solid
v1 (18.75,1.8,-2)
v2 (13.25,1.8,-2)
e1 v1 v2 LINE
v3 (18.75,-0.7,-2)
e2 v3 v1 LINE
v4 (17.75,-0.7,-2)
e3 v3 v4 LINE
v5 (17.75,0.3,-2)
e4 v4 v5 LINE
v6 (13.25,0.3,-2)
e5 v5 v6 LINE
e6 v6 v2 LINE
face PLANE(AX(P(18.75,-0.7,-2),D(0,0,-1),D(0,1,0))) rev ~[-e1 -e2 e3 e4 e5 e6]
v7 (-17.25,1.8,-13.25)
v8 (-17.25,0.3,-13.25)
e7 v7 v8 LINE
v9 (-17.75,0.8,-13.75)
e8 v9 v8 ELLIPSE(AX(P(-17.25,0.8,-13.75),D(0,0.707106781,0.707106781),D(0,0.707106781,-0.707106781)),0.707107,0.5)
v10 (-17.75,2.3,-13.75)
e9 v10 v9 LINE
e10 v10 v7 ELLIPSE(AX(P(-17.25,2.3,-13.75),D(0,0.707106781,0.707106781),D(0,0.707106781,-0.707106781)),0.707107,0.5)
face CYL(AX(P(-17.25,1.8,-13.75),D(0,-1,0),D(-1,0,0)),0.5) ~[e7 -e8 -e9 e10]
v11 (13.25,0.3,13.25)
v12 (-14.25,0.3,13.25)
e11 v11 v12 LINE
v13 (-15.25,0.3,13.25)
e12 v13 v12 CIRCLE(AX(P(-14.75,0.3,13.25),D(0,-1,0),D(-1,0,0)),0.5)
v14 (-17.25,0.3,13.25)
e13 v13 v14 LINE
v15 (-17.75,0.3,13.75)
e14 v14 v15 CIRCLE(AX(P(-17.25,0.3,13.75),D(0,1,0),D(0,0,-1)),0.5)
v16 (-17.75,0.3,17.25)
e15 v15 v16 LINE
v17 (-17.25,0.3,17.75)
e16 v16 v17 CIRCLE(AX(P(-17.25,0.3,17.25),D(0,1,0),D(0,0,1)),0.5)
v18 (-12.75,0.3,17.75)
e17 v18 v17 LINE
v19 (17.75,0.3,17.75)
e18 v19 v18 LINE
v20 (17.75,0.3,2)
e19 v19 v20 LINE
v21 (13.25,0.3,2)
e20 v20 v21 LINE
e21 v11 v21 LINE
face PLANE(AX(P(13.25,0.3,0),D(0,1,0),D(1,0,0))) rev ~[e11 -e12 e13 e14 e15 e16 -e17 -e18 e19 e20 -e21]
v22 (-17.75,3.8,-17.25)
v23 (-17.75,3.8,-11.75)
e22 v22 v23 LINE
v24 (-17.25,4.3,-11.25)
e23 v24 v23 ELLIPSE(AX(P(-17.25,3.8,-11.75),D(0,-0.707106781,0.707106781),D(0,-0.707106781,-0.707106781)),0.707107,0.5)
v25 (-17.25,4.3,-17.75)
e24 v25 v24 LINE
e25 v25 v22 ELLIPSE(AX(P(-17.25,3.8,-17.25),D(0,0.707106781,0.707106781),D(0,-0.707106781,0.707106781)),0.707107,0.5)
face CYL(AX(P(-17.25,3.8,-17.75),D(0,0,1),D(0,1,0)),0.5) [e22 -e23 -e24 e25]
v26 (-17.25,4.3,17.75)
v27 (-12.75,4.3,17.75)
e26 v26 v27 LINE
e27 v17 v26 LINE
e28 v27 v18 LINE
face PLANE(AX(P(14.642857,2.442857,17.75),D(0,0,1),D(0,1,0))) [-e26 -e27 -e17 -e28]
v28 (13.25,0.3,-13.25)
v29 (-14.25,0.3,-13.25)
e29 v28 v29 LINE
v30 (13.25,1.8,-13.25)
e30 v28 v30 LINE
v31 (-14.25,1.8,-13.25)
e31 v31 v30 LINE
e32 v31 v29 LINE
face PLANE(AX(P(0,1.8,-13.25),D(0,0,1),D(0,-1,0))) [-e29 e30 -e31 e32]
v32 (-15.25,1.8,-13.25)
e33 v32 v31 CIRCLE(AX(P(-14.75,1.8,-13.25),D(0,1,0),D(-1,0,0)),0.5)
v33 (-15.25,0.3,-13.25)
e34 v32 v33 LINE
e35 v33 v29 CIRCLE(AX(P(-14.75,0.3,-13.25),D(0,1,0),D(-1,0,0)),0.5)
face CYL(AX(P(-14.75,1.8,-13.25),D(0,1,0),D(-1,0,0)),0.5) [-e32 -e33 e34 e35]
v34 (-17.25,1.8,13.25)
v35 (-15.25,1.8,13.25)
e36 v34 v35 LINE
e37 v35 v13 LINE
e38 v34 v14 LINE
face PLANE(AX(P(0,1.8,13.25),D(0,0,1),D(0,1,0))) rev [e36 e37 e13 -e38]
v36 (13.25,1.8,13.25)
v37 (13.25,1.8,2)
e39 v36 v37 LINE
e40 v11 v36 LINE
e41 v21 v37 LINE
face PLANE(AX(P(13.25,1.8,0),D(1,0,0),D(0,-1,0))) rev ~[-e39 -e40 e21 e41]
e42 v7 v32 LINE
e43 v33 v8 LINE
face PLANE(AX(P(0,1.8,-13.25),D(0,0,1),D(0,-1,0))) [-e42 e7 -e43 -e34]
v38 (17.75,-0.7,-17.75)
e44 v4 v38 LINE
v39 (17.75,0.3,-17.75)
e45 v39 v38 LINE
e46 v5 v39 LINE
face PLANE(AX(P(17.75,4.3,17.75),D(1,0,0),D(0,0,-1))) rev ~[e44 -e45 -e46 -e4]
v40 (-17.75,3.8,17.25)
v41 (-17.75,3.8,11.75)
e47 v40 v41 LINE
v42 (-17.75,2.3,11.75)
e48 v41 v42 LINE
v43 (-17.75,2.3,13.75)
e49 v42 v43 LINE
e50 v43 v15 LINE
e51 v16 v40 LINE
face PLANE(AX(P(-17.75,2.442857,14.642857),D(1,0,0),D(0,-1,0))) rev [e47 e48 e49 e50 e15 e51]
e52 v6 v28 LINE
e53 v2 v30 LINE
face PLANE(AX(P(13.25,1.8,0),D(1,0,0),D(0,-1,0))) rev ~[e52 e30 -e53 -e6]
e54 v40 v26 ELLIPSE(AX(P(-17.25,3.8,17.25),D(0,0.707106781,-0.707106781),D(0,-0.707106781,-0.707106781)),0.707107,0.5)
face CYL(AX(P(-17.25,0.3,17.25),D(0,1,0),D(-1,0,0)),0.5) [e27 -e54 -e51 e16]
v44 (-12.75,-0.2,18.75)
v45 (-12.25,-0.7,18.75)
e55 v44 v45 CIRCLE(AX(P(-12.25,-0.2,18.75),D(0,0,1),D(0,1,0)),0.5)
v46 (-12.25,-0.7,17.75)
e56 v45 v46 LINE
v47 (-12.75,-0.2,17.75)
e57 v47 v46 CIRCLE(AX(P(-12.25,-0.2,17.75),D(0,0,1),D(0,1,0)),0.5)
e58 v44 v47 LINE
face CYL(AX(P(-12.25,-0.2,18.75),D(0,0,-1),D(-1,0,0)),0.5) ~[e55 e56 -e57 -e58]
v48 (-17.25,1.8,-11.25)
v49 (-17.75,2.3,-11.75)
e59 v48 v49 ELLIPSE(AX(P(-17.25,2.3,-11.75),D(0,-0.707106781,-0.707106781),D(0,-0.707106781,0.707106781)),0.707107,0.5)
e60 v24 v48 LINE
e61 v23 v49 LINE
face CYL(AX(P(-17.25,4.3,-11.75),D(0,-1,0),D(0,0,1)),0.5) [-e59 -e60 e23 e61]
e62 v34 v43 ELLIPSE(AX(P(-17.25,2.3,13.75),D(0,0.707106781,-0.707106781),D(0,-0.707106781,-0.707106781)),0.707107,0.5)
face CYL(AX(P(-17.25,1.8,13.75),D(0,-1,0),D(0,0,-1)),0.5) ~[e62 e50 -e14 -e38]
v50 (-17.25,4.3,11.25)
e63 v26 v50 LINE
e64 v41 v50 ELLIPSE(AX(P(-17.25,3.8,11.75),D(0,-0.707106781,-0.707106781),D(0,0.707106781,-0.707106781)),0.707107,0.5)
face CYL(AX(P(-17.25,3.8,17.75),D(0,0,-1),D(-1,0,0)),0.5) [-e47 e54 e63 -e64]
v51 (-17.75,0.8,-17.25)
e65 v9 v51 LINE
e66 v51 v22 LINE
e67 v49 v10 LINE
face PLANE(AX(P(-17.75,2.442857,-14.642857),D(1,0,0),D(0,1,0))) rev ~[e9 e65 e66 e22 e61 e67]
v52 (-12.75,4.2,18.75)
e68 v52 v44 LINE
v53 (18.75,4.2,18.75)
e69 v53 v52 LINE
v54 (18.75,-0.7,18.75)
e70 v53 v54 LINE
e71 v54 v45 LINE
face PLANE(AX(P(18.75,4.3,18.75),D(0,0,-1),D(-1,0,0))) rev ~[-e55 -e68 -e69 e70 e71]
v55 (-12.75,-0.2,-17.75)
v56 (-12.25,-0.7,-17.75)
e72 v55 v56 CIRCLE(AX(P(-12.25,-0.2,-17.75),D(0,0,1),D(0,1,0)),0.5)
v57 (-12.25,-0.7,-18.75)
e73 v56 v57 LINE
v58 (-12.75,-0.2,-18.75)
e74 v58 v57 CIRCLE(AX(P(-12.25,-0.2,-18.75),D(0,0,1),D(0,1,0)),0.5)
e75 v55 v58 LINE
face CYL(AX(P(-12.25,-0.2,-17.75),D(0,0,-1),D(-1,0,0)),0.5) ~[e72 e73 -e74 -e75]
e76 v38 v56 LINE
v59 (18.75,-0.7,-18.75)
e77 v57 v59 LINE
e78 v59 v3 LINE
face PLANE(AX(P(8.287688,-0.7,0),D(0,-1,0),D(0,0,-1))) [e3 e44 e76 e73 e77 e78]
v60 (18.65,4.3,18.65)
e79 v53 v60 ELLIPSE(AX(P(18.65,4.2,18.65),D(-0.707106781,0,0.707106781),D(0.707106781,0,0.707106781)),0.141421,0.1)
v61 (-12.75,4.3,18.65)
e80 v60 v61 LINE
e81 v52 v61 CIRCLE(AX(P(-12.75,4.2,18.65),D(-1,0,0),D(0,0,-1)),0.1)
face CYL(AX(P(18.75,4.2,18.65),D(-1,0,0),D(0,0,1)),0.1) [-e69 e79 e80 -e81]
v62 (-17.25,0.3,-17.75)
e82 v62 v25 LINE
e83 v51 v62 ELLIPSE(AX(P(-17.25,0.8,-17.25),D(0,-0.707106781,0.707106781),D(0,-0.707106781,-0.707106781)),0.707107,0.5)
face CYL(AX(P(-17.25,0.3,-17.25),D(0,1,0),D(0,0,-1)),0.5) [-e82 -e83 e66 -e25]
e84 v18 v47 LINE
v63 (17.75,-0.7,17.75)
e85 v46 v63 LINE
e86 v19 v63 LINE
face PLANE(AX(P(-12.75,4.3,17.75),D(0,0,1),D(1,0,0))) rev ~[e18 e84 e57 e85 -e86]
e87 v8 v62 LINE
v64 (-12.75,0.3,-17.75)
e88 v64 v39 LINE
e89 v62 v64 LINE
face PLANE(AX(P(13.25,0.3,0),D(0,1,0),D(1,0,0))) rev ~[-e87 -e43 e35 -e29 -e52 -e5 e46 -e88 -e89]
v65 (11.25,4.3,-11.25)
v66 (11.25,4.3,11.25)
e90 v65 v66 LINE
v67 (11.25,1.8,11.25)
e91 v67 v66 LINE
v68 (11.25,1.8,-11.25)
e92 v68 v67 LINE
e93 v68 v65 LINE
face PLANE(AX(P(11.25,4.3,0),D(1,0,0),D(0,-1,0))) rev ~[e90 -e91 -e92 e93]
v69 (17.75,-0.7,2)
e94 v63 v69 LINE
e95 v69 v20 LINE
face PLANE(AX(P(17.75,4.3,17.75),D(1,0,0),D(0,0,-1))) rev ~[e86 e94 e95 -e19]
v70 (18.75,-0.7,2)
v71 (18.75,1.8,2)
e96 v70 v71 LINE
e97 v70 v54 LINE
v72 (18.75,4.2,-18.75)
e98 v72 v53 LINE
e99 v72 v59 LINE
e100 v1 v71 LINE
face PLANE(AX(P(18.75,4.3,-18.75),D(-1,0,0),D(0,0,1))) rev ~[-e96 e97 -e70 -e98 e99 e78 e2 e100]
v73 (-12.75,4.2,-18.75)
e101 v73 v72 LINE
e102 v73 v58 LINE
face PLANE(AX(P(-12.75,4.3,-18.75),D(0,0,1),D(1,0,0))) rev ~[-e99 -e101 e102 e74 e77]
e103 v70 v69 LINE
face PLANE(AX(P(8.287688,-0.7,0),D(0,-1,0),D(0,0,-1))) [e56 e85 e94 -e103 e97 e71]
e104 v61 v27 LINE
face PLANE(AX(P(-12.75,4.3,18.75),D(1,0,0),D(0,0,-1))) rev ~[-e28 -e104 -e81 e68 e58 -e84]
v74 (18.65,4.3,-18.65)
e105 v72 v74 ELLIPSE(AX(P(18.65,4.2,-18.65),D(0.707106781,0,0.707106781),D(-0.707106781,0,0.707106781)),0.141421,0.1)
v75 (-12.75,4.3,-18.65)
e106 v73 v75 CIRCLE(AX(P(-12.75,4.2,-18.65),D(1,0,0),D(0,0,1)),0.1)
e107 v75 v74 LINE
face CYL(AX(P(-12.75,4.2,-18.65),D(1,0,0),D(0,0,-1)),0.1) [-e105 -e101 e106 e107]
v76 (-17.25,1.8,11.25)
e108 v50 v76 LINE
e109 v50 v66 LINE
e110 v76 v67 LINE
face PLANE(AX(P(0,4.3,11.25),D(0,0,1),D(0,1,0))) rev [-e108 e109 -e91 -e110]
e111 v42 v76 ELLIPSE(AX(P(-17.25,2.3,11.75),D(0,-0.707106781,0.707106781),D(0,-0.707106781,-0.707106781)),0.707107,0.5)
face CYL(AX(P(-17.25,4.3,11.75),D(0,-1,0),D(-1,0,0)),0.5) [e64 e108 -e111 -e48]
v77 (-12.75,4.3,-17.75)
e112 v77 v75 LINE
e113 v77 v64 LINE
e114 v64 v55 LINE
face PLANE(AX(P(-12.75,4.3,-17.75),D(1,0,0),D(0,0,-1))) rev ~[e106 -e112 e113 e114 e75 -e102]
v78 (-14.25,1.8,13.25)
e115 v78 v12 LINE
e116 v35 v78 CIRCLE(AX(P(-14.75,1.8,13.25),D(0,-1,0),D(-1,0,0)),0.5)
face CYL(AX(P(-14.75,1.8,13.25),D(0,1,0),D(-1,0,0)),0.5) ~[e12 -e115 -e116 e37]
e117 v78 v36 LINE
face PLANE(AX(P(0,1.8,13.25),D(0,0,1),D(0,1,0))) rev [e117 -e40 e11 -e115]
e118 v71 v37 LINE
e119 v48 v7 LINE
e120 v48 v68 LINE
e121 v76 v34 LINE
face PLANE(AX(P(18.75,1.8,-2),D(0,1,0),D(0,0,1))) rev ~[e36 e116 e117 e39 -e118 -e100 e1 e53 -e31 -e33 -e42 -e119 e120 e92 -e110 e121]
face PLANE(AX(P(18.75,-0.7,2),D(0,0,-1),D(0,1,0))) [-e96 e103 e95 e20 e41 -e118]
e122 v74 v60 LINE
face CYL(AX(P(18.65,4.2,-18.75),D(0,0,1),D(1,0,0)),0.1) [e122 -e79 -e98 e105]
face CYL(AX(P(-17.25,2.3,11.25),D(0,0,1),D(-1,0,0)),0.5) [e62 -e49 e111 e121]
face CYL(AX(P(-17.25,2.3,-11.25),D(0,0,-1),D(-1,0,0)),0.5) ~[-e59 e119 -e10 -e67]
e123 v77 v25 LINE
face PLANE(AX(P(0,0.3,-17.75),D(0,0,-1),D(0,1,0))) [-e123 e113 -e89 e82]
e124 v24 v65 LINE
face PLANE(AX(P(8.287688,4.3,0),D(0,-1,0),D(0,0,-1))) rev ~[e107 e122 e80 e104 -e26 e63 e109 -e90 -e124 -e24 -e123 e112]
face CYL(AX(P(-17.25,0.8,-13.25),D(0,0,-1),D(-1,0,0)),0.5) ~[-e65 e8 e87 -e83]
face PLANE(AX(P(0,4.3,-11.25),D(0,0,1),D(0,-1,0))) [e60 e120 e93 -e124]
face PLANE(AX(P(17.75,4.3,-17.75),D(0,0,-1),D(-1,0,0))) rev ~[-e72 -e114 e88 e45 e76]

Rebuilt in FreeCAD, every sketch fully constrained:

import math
import FreeCAD as App
import Part
import Sketcher
from FreeCAD import Vector


def edges_at(feature, points):
    """Names of the edges that pass closest to the given points."""
    edges = feature.Shape.Edges
    near = lambda p: min(range(len(edges)), key=lambda i: edges[i].distToShape(Part.Vertex(*p))[0])
    return sorted({f"Edge{near(p) + 1}" for p in points})


def add_polygon(sketch, points):
    """Adds a closed chain of lines whose ends are joined by coincident constraints."""
    first, n = sketch.GeometryCount, len(points)
    for a, b in zip(points, points[1:] + points[:1]):
        sketch.addGeometry(Part.LineSegment(App.Vector(*a, 0), App.Vector(*b, 0)), False)
    for i in range(n):
        sketch.addConstraint(Sketcher.Constraint("Coincident", first + i, 2, first + (i + 1) % n, 1))

doc = App.newDocument("Part")
params = doc.addObject("Spreadsheet::Sheet", "Params")
for row, (alias, value) in enumerate([
    ("sketch1_width", "4 mm"),
    ("sketch1_height", "2 mm"),
    ("sketch1_width2", "2.5 mm"),
    ("sketch1_height2", "6.5 mm"),
    ("pad1_length", "17.75 mm"),
    ("pad1_length2", "17.75 mm"),
    ("fillet_radius", "0.5 mm"),
    ("sketch2_radius", "0.5 mm"),
    ("pad2_length", "1.5 mm"),
    ("sketch3_height", "1 mm"),
    ("sketch3_width", "31.5 mm"),
    ("sketch3_width2", "30.5 mm"),
    ("sketch3_height2", "37.5 mm"),
    ("pad3_length", "5 mm"),
    ("fillet2_radius", "0.1 mm"),
    ("fillet3_radius", "0.5 mm"),
    ("fillet4_radius", "0.5 mm"),
    ("sketch4_height", "4 mm"),
    ("sketch4_width", "2.5 mm"),
], start=1):
    params.set(f"A{row}", alias)
    params.set(f"B{row}", "=" + value)
    params.setAlias(f"B{row}", alias)

body = doc.addObject("PartDesign::Body", "Body")

sketch1 = doc.addObject("Sketcher::SketchObject", "Sketch")
body.addObject(sketch1)
sketch1.AttachmentSupport = (doc.YZ_Plane, [""])
sketch1.MapMode = "FlatFace"
add_polygon(sketch1, [(0, -17.8), (4, -17.8), (4, -11.2), (1.5, -11.2), (1.5, -13.2), (0, -13.2)])
sketch1.addConstraint(Sketcher.Constraint("Horizontal", 0))
sketch1.addConstraint(Sketcher.Constraint("Vertical", 1))
sketch1.addConstraint(Sketcher.Constraint("Horizontal", 2))
sketch1.addConstraint(Sketcher.Constraint("Vertical", 3))
sketch1.addConstraint(Sketcher.Constraint("Horizontal", 4))
sketch1.addConstraint(Sketcher.Constraint("Vertical", 5))
sketch1.addConstraint(Sketcher.Constraint("PointOnObject", 4, 2, -2))
sketch1.addConstraint(Sketcher.Constraint("DistanceX", 0, 1, 0, 2, 4.0))
sketch1.addConstraint(Sketcher.Constraint("DistanceY", 3, 2, 3, 1, 2.0))
sketch1.addConstraint(Sketcher.Constraint("DistanceX", 2, 2, 2, 1, 2.5))
sketch1.addConstraint(Sketcher.Constraint("DistanceY", 1, 1, 1, 2, 6.5))
sketch1.addConstraint(Sketcher.Constraint("DistanceY", 0, 2, -1, 1, 17.75))
sketch1.setExpression("Constraints[13]", "Params.sketch1_width")
sketch1.setExpression("Constraints[14]", "Params.sketch1_height")
sketch1.setExpression("Constraints[15]", "Params.sketch1_width2")
sketch1.setExpression("Constraints[16]", "Params.sketch1_height2")
pad1 = doc.addObject("PartDesign::Pad", "Pad")
body.addObject(pad1)
pad1.Profile = sketch1
pad1.Type = "TwoLengths"
pad1.setExpression("Length", "Params.pad1_length")
pad1.setExpression("Length2", "Params.pad1_length2")
doc.recompute()

polarpattern = doc.addObject("PartDesign::PolarPattern", "PolarPattern")
body.addObject(polarpattern)
polarpattern.Originals = [pad1]
polarpattern.Axis = (doc.Y_Axis, [""])
polarpattern.Angle = 270
polarpattern.Occurrences = 2
body.Tip = polarpattern
doc.recompute()

mirrored = doc.addObject("PartDesign::Mirrored", "Mirrored")
body.addObject(mirrored)
mirrored.Originals = [pad1]
mirrored.MirrorPlane = (doc.XY_Plane, [""])
body.Tip = mirrored
doc.recompute()

fillet = doc.addObject("PartDesign::Fillet", "Fillet")
body.addObject(fillet)
fillet.Base = (mirrored, edges_at(mirrored, [
    (-17.75, 4, 14.5),
    (-17.75, 2.75, 11.25),
    (-17.75, 0.75, 13.25),
    (-17.75, 1.5, 12.25),
    (-17.75, 2, 17.75),
]))
fillet.setExpression("Radius", "Params.fillet_radius")

sketch2 = doc.addObject("Sketcher::SketchObject", "Sketch001")
body.addObject(sketch2)
sketch2.AttachmentSupport = (doc.XZ_Plane, [""])
sketch2.MapMode = "FlatFace"
sketch2.AttachmentOffset = App.Placement(Vector(0, 0, -1.5), App.Rotation())
sketch2.addGeometry(Part.ArcOfCircle(Part.Circle(Vector(-14.8, 13.2, 0), Vector(0, 0, 1), 0.5), math.radians(180), math.radians(360)), False)
sketch2.addGeometry(Part.LineSegment(Vector(-14.2, 13.2, 0), Vector(-15.2, 13.2, 0)), False)
sketch2.addConstraint(Sketcher.Constraint("Coincident", 0, 1, 1, 2))
sketch2.addConstraint(Sketcher.Constraint("Coincident", 1, 1, 0, 2))
sketch2.addConstraint(Sketcher.Constraint("Horizontal", 1))
sketch2.addConstraint(Sketcher.Constraint("Radius", 0, 0.5))
sketch2.addConstraint(Sketcher.Constraint("DistanceX", 0, 3, -1, 1, 14.75))
sketch2.addConstraint(Sketcher.Constraint("DistanceY", -1, 1, 0, 3, 13.25))
sketch2.addConstraint(Sketcher.Constraint("DistanceY", -1, 1, 0, 1, 13.25))
sketch2.setExpression("Constraints[3]", "Params.sketch2_radius")
pad2 = doc.addObject("PartDesign::Pad", "Pad001")
body.addObject(pad2)
pad2.Profile = sketch2
pad2.setExpression("Length", "Params.pad2_length")

sketch3 = doc.addObject("Sketcher::SketchObject", "Sketch002")
body.addObject(sketch3)
sketch3.AttachmentSupport = (doc.XZ_Plane, [""])
sketch3.MapMode = "FlatFace"
sketch3.AttachmentOffset = App.Placement(Vector(0, 0, -4), App.Rotation())
add_polygon(sketch3, [(18.8, 18.8), (18.8, -18.8), (-12.8, -18.8), (-12.8, -17.8), (17.8, -17.8), (17.8, 17.8), (-12.8, 17.8), (-12.8, 18.8)])
sketch3.addConstraint(Sketcher.Constraint("Vertical", 0))
sketch3.addConstraint(Sketcher.Constraint("Horizontal", 1))
sketch3.addConstraint(Sketcher.Constraint("Vertical", 2))
sketch3.addConstraint(Sketcher.Constraint("Horizontal", 3))
sketch3.addConstraint(Sketcher.Constraint("Vertical", 4))
sketch3.addConstraint(Sketcher.Constraint("Horizontal", 5))
sketch3.addConstraint(Sketcher.Constraint("Vertical", 6))
sketch3.addConstraint(Sketcher.Constraint("Horizontal", 7))
sketch3.addConstraint(Sketcher.Constraint("Symmetric", 2, 2, 5, 2, -1))
sketch3.addConstraint(Sketcher.Constraint("Equal", 2, 6))
sketch3.addConstraint(Sketcher.Constraint("DistanceY", 2, 1, 2, 2, 1.0))
sketch3.addConstraint(Sketcher.Constraint("DistanceX", 1, 2, 1, 1, 31.5))
sketch3.addConstraint(Sketcher.Constraint("DistanceX", 3, 1, 3, 2, 30.5))
sketch3.addConstraint(Sketcher.Constraint("DistanceY", 0, 2, 0, 1, 37.5))
sketch3.addConstraint(Sketcher.Constraint("DistanceX", -1, 1, 0, 2, 18.75))
sketch3.setExpression("Constraints[18]", "Params.sketch3_height")
sketch3.setExpression("Constraints[19]", "Params.sketch3_width")
sketch3.setExpression("Constraints[20]", "Params.sketch3_width2")
sketch3.setExpression("Constraints[21]", "Params.sketch3_height2")
pad3 = doc.addObject("PartDesign::Pad", "Pad002")
body.addObject(pad3)
pad3.Profile = sketch3
pad3.setExpression("Length", "Params.pad3_length")
doc.recompute()

fillet2 = doc.addObject("PartDesign::Fillet", "Fillet001")
body.addObject(fillet2)
fillet2.Base = (pad3, edges_at(pad3, [(18.75, 4, 0), (3, 4, -18.75), (3, 4, 18.75)]))
fillet2.setExpression("Radius", "Params.fillet2_radius")
doc.recompute()

fillet3 = doc.addObject("PartDesign::Fillet", "Fillet002")
body.addObject(fillet3)
fillet3.Base = (fillet2, edges_at(fillet2, [
    (-17.75, 2.75, -11.25),
    (-17.75, 1.5, -12.25),
    (-17.75, 0, -15.5),
    (-17.75, 0.75, -13.25),
    (-17.75, 4, -14.5),
    (-17.75, 2, -17.75),
]))
fillet3.setExpression("Radius", "Params.fillet3_radius")
doc.recompute()

fillet4 = doc.addObject("PartDesign::Fillet", "Fillet003")
body.addObject(fillet4)
fillet4.Base = (fillet3, edges_at(fillet3, [(-12.75, -1, 18.25), (-12.75, -1, -18.25)]))
fillet4.setExpression("Radius", "Params.fillet4_radius")
doc.recompute()

mirrored2 = doc.addObject("PartDesign::Mirrored", "Mirrored001")
body.addObject(mirrored2)
mirrored2.Originals = [pad2]
mirrored2.MirrorPlane = (doc.XY_Plane, [""])
body.Tip = mirrored2

sketch4 = doc.addObject("Sketcher::SketchObject", "Sketch003")
body.addObject(sketch4)
sketch4.AttachmentSupport = (doc.YZ_Plane, [""])
sketch4.MapMode = "FlatFace"
sketch4.AttachmentOffset = App.Placement(Vector(0, 0, 18.75), App.Rotation())
add_polygon(sketch4, [(-1, 2), (-1, -2), (1.5, -2), (1.5, 2)])
sketch4.addConstraint(Sketcher.Constraint("Vertical", 0))
sketch4.addConstraint(Sketcher.Constraint("Horizontal", 1))
sketch4.addConstraint(Sketcher.Constraint("Vertical", 2))
sketch4.addConstraint(Sketcher.Constraint("Horizontal", 3))
sketch4.addConstraint(Sketcher.Constraint("DistanceY", 0, 2, 0, 1, 4.0))
sketch4.addConstraint(Sketcher.Constraint("DistanceX", 1, 1, 1, 2, 2.5))
sketch4.addConstraint(Sketcher.Constraint("DistanceX", 0, 2, -1, 1, 1.0))
sketch4.addConstraint(Sketcher.Constraint("DistanceY", 0, 2, -1, 1, 2.0))
sketch4.setExpression("Constraints[8]", "Params.sketch4_height")
sketch4.setExpression("Constraints[9]", "Params.sketch4_width")
pocket1 = doc.addObject("PartDesign::Pocket", "Pocket")
body.addObject(pocket1)
pocket1.Profile = sketch4
pocket1.Type = "ThroughAll"
body2 = doc.addObject("PartDesign::Body", "Body001")
doc.recompute()

body.Placement = App.Placement(Vector(0, 0.3, 0), App.Rotation(Vector(0, 0, 1), 0))
boolean = doc.addObject("PartDesign::Boolean", "Boolean")
body2.addObject(boolean)
boolean.Type = "Fuse"
boolean.addObjects([body])

doc.recompute()
